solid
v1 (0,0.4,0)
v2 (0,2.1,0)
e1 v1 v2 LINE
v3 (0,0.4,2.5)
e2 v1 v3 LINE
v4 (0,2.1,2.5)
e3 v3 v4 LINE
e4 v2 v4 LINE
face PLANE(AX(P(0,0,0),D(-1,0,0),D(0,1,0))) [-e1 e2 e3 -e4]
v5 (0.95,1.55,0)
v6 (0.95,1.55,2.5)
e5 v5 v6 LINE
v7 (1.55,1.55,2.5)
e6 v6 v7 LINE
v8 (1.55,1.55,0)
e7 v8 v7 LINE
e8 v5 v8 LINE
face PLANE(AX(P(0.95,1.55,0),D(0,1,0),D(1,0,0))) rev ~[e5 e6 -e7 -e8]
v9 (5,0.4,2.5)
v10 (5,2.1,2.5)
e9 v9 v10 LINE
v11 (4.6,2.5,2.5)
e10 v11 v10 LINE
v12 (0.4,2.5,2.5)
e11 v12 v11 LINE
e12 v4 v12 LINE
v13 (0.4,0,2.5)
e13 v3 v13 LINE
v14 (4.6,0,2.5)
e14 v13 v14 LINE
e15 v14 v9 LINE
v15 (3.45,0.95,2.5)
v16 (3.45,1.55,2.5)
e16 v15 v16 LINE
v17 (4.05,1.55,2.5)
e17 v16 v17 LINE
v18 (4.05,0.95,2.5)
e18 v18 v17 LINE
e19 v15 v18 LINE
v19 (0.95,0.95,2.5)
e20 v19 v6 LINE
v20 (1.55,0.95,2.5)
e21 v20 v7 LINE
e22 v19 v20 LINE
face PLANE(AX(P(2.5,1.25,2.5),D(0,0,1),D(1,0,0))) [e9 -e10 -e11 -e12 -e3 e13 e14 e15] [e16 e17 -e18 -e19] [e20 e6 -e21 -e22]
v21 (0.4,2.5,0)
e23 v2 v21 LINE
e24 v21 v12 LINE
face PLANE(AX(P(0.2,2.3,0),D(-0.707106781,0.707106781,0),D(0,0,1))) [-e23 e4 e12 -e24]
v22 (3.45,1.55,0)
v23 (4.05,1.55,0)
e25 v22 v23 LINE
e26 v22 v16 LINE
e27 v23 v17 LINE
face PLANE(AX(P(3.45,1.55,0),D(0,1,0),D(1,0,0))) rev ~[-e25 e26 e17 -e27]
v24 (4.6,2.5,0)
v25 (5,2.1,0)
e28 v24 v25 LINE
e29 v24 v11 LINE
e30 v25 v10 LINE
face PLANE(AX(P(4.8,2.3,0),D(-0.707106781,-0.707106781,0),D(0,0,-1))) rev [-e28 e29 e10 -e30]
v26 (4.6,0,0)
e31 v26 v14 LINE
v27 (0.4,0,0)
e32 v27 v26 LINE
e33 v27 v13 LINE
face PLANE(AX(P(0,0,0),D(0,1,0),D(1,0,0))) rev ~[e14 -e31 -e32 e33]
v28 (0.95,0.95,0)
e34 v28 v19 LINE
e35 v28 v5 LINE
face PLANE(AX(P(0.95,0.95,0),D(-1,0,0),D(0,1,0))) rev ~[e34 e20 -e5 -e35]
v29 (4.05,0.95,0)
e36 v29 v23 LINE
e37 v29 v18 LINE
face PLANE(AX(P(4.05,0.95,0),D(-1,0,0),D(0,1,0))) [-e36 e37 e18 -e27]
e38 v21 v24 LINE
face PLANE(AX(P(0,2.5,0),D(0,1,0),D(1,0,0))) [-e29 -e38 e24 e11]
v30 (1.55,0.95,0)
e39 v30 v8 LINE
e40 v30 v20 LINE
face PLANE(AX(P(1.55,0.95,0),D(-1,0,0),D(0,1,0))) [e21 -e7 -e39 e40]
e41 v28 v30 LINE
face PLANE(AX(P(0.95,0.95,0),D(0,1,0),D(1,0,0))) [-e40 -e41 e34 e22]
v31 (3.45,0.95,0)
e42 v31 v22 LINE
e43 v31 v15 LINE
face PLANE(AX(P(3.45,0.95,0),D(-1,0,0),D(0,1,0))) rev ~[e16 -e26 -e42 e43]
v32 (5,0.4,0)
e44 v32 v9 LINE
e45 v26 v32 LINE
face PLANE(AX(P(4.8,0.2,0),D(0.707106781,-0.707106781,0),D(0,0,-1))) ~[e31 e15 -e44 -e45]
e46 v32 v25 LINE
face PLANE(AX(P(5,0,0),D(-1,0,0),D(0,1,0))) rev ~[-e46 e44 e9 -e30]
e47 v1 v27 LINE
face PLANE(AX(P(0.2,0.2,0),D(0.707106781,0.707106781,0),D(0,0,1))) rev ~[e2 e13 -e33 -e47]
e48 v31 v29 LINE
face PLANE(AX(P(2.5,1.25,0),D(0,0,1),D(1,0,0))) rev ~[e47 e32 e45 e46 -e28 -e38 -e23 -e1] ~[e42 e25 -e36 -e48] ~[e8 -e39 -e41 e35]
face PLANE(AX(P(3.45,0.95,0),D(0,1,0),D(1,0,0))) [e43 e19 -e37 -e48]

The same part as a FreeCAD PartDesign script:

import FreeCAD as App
import Part
import Sketcher

V = App.Vector


def edges_at(feature, points):
    """Names of the edges that pass closest to the given points."""
    edges = feature.Shape.Edges
    near = lambda p: min(range(len(edges)), key=lambda i: edges[i].distToShape(Part.Vertex(*p))[0])
    return sorted({f"Edge{near(p) + 1}" for p in points})

doc = App.newDocument("Part")
body = doc.addObject("PartDesign::Body", "Body")

# Sketch on XY plane
sketch1 = doc.addObject("Sketcher::SketchObject", "Sketch")
body.addObject(sketch1)
sketch1.AttachmentSupport = (doc.XY_Plane, [""])
sketch1.MapMode = "FlatFace"
sketch1.addGeometry(Part.LineSegment(V(0, 2.5, 0), V(0, 0, 0)), False)
sketch1.addGeometry(Part.LineSegment(V(0, 0, 0), V(5, 0, 0)), False)
sketch1.addGeometry(Part.LineSegment(V(5, 0, 0), V(5, 2.5, 0)), False)
sketch1.addGeometry(Part.LineSegment(V(5, 2.5, 0), V(0, 2.5, 0)), False)
sketch1.addGeometry(Part.LineSegment(V(1.6, 0.9, 0), V(0.9, 0.9, 0)), False)
sketch1.addGeometry(Part.LineSegment(V(0.9, 0.9, 0), V(0.9, 1.6, 0)), False)
sketch1.addGeometry(Part.LineSegment(V(0.9, 1.6, 0), V(1.6, 1.6, 0)), False)
sketch1.addGeometry(Part.LineSegment(V(1.6, 1.6, 0), V(1.6, 0.9, 0)), False)
sketch1.addGeometry(Part.LineSegment(V(4, 0.9, 0), V(3.5, 0.9, 0)), False)
sketch1.addGeometry(Part.LineSegment(V(3.5, 0.9, 0), V(3.5, 1.6, 0)), False)
sketch1.addGeometry(Part.LineSegment(V(3.5, 1.6, 0), V(4, 1.6, 0)), False)
sketch1.addGeometry(Part.LineSegment(V(4, 1.6, 0), V(4, 0.9, 0)), False)
sketch1.addConstraint(Sketcher.Constraint("Coincident", 0, 2, 1, 1))
sketch1.addConstraint(Sketcher.Constraint("Coincident", 1, 2, 2, 1))
sketch1.addConstraint(Sketcher.Constraint("Coincident", 2, 2, 3, 1))
sketch1.addConstraint(Sketcher.Constraint("Coincident", 3, 2, 0, 1))
sketch1.addConstraint(Sketcher.Constraint("Coincident", 4, 2, 5, 1))
sketch1.addConstraint(Sketcher.Constraint("Coincident", 5, 2, 6, 1))
sketch1.addConstraint(Sketcher.Constraint("Coincident", 6, 2, 7, 1))
sketch1.addConstraint(Sketcher.Constraint("Coincident", 7, 2, 4, 1))
sketch1.addConstraint(Sketcher.Constraint("Coincident", 8, 2, 9, 1))
sketch1.addConstraint(Sketcher.Constraint("Coincident", 9, 2, 10, 1))
sketch1.addConstraint(Sketcher.Constraint("Coincident", 10, 2, 11, 1))
sketch1.addConstraint(Sketcher.Constraint("Coincident", 11, 2, 8, 1))
sketch1.addConstraint(Sketcher.Constraint("Vertical", 0))
sketch1.addConstraint(Sketcher.Constraint("Horizontal", 1))
sketch1.addConstraint(Sketcher.Constraint("Vertical", 2))
sketch1.addConstraint(Sketcher.Constraint("Horizontal", 3))
sketch1.addConstraint(Sketcher.Constraint("Horizontal", 4))
sketch1.addConstraint(Sketcher.Constraint("Vertical", 5))
sketch1.addConstraint(Sketcher.Constraint("Horizontal", 6))
sketch1.addConstraint(Sketcher.Constraint("Vertical", 7))
sketch1.addConstraint(Sketcher.Constraint("Horizontal", 8))
sketch1.addConstraint(Sketcher.Constraint("Vertical", 9))
sketch1.addConstraint(Sketcher.Constraint("Horizontal", 10))
sketch1.addConstraint(Sketcher.Constraint("Vertical", 11))
sketch1.addConstraint(Sketcher.Constraint("Coincident", 0, 2, -1, 1))
sketch1.addConstraint(Sketcher.Constraint("Horizontal", 7, 2, 8, 2))
sketch1.addConstraint(Sketcher.Constraint("Horizontal", 6, 2, 9, 2))
sketch1.addConstraint(Sketcher.Constraint("Equal", 6, 8))
sketch1.addConstraint(Sketcher.Constraint("Equal", 10, 5))
sketch1.addConstraint(Sketcher.Constraint("DistanceX", 1, 1, 1, 2, 5.0))
sketch1.addConstraint(Sketcher.Constraint("DistanceX", 4, 2, 4, 1, 0.6))
sketch1.addConstraint(Sketcher.Constraint("DistanceY", 0, 2, 0, 1, 2.5))
sketch1.addConstraint(Sketcher.Constraint("DistanceX", 7, 2, 8, 2, 1.9))
sketch1.addConstraint(Sketcher.Constraint("DistanceX", -1, 1, 4, 2, 0.95))
sketch1.addConstraint(Sketcher.Constraint("DistanceY", -1, 1, 4, 2, 0.95))
pad1 = doc.addObject("PartDesign::Pad", "Pad")
body.addObject(pad1)
pad1.Profile = sketch1
pad1.Length = 2.5
doc.recompute()

chamfer = doc.addObject("PartDesign::Chamfer", "Chamfer")
body.addObject(chamfer)
chamfer.Base = (pad1, edges_at(pad1, [
    (0, 2.5, 1.25),
    (0, 0, 1.25),
    (5, 0, 1.25),
    (5, 2.5, 1.25),
]))
chamfer.Size = 0.4

doc.recompute()
